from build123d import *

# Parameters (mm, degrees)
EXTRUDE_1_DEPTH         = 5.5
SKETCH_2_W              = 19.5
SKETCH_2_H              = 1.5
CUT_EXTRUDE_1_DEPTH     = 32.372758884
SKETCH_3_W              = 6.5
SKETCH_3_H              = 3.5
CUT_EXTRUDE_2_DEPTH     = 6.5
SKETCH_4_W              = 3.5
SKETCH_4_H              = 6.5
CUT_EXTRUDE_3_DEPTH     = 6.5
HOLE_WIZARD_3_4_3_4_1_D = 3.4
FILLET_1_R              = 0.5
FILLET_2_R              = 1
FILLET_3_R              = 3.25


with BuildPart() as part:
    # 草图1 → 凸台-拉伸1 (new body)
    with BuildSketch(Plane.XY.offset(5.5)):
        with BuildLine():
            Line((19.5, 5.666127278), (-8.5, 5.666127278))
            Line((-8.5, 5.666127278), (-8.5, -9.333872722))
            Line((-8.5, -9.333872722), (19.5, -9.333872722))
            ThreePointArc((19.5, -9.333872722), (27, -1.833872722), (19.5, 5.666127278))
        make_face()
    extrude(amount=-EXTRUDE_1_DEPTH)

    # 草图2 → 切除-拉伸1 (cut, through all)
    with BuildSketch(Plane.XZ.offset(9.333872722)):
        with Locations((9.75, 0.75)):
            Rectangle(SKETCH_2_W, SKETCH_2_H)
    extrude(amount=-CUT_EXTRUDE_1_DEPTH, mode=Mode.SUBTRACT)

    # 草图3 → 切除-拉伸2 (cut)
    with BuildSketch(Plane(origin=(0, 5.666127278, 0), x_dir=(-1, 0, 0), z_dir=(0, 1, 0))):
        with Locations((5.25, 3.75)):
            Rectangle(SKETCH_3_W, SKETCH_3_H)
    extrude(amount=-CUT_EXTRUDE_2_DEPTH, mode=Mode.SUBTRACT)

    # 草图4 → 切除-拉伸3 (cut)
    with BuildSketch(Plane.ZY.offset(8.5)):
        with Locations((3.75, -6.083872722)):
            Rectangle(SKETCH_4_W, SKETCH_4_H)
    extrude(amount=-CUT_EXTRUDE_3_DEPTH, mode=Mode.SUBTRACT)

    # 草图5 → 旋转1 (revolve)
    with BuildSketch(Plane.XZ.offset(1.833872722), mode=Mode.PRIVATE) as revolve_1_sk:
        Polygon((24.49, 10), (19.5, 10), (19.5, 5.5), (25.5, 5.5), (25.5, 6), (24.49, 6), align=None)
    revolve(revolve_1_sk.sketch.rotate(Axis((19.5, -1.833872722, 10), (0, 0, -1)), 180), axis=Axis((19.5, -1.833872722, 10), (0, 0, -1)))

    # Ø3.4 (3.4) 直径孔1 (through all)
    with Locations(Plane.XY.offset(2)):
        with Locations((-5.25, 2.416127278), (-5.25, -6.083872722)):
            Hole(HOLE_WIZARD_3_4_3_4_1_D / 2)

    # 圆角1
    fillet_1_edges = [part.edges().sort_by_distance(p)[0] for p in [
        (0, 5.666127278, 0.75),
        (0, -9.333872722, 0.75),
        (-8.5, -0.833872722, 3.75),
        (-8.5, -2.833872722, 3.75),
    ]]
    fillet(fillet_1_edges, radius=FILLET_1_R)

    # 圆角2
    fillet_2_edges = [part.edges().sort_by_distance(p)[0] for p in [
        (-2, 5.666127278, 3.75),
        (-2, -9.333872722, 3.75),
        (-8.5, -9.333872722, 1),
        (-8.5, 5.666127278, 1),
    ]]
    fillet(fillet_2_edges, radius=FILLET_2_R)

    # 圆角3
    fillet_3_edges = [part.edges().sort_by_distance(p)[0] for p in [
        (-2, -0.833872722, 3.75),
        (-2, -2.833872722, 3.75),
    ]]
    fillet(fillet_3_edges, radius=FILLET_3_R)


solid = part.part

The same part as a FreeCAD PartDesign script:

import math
import FreeCAD as App
import Part
import Sketcher
from FreeCAD import Vector
Q = App.Units.Quantity


def edges_at(feature, points):
    """Names of the edges that pass closest to the given points."""
    edges = feature.Shape.Edges
    near = lambda p: min(range(len(edges)), key=lambda i: edges[i].distToShape(Part.Vertex(*p))[0])
    return sorted({f"Edge{near(p) + 1}" for p in points})

doc = App.newDocument("Part")
body = doc.addObject("PartDesign::Body", "Body")

# Sketch on XY plane
sketch1 = body.newObject("Sketcher::SketchObject", "Sketch")
sketch1.AttachmentSupport = (doc.getObject("XY_Plane"), [""])
sketch1.MapMode = "FlatFace"
sketch1.AttachmentOffset = App.Placement(Vector(0, 0, 5.5), App.Rotation())
sketch1.addGeometry([
    Part.LineSegment(Vector(19.5, 5.666127, 0), Vector(-8.5, 5.666127, 0)),
    Part.LineSegment(Vector(-8.5, 5.666127, 0), Vector(-8.5, -9.333873, 0)),
    Part.LineSegment(Vector(-8.5, -9.333873, 0), Vector(19.5, -9.333873, 0)),
    Part.ArcOfCircle(Part.Circle(Vector(19.5, -1.833873, 0), Vector(0, 0, 1), 7.5), math.radians(-90), math.radians(90)),
], False)
sketch1.addConstraint([
    Sketcher.Constraint("Coincident", 0, 2, 1, 1),
    Sketcher.Constraint("Coincident", 1, 2, 2, 1),
    Sketcher.Constraint("Tangent", 2, 2, 3, 1),
    Sketcher.Constraint("Tangent", 3, 2, 0, 1),
    Sketcher.Constraint("Horizontal", 0),
    Sketcher.Constraint("Vertical", 1),
    Sketcher.Constraint("Horizontal", 2),
    Sketcher.Constraint("Radius", 3, Q("7.5 mm")),
    Sketcher.Constraint("DistanceX", 0, 2, 0, 1, Q("28 mm")),
    Sketcher.Constraint("DistanceX", -1, 1, 3, 3, Q("19.5 mm")),
    Sketcher.Constraint("DistanceY", 3, 3, -1, 1, Q("1.833873 mm")),
])
pad1 = body.newObject("PartDesign::Pad", "Pad")
pad1.Profile = sketch1
pad1.Length = 5.5
pad1.Reversed = True

# Sketch on XZ plane
sketch2 = body.newObject("Sketcher::SketchObject", "Sketch001")
sketch2.AttachmentSupport = (doc.getObject("XZ_Plane"), [""])
sketch2.MapMode = "FlatFace"
sketch2.AttachmentOffset = App.Placement(Vector(0, 0, 9.333873), App.Rotation())
sketch2.addGeometry([
    Part.LineSegment(Vector(0, 1.5, 0), Vector(0, 0, 0)),
    Part.LineSegment(Vector(0, 0, 0), Vector(19.5, 0, 0)),
    Part.LineSegment(Vector(19.5, 0, 0), Vector(19.5, 1.5, 0)),
    Part.LineSegment(Vector(19.5, 1.5, 0), Vector(0, 1.5, 0)),
], False)
sketch2.addConstraint([
    Sketcher.Constraint("Coincident", 0, 2, 1, 1),
    Sketcher.Constraint("Coincident", 1, 2, 2, 1),
    Sketcher.Constraint("Coincident", 2, 2, 3, 1),
    Sketcher.Constraint("Coincident", 3, 2, 0, 1),
    Sketcher.Constraint("Vertical", 0),
    Sketcher.Constraint("Horizontal", 1),
    Sketcher.Constraint("Vertical", 2),
    Sketcher.Constraint("Horizontal", 3),
    Sketcher.Constraint("Coincident", 0, 2, -1, 1),
    Sketcher.Constraint("DistanceX", 1, 1, 1, 2, Q("19.5 mm")),
    Sketcher.Constraint("DistanceY", 0, 2, 0, 1, Q("1.5 mm")),
])
pocket1 = body.newObject("PartDesign::Pocket", "Pocket")
pocket1.Profile = sketch2
pocket1.Type = "ThroughAll"

# Sketch on XZ plane
sketch3 = body.newObject("Sketcher::SketchObject", "Sketch002")
sketch3.AttachmentSupport = (doc.getObject("XZ_Plane"), [""])
sketch3.MapMode = "FlatFace"
sketch3.AttachmentOffset = App.Placement(Vector(0, 0, -5.666127), App.Rotation())
sketch3.addGeometry([
    Part.LineSegment(Vector(-2, 5.5, 0), Vector(-2, 2, 0)),
    Part.LineSegment(Vector(-2, 2, 0), Vector(-8.5, 2, 0)),
    Part.LineSegment(Vector(-8.5, 2, 0), Vector(-8.5, 5.5, 0)),
    Part.LineSegment(Vector(-8.5, 5.5, 0), Vector(-2, 5.5, 0)),
], False)
sketch3.addConstraint([
    Sketcher.Constraint("Coincident", 0, 2, 1, 1),
    Sketcher.Constraint("Coincident", 1, 2, 2, 1),
    Sketcher.Constraint("Coincident", 2, 2, 3, 1),
    Sketcher.Constraint("Coincident", 3, 2, 0, 1),
    Sketcher.Constraint("Vertical", 0),
    Sketcher.Constraint("Horizontal", 1),
    Sketcher.Constraint("Vertical", 2),
    Sketcher.Constraint("Horizontal", 3),
    Sketcher.Constraint("DistanceX", 1, 2, 1, 1, Q("6.5 mm")),
    Sketcher.Constraint("DistanceY", 0, 2, 0, 1, Q("3.5 mm")),
    Sketcher.Constraint("DistanceX", 0, 2, -1, 1, Q("2 mm")),
    Sketcher.Constraint("DistanceY", -1, 1, 0, 2, Q("2 mm")),
])
pocket2 = body.newObject("PartDesign::Pocket", "Pocket001")
pocket2.Profile = sketch3
pocket2.Length = 6.5
pocket2.Reversed = True

# Sketch on YZ plane
sketch4 = body.newObject("Sketcher::SketchObject", "Sketch003")
sketch4.AttachmentSupport = (doc.getObject("YZ_Plane"), [""])
sketch4.MapMode = "FlatFace"
sketch4.AttachmentOffset = App.Placement(Vector(0, 0, -8.5), App.Rotation())
sketch4.addGeometry([
    Part.LineSegment(Vector(-2.833873, 2, 0), Vector(-9.333873, 2, 0)),
    Part.LineSegment(Vector(-9.333873, 2, 0), Vector(-9.333873, 5.5, 0)),
    Part.LineSegment(Vector(-9.333873, 5.5, 0), Vector(-2.833873, 5.5, 0)),
    Part.LineSegment(Vector(-2.833873, 5.5, 0), Vector(-2.833873, 2, 0)),
], False)
sketch4.addConstraint([
    Sketcher.Constraint("Coincident", 0, 2, 1, 1),
    Sketcher.Constraint("Coincident", 1, 2, 2, 1),
    Sketcher.Constraint("Coincident", 2, 2, 3, 1),
    Sketcher.Constraint("Coincident", 3, 2, 0, 1),
    Sketcher.Constraint("Horizontal", 0),
    Sketcher.Constraint("Vertical", 1),
    Sketcher.Constraint("Horizontal", 2),
    Sketcher.Constraint("Vertical", 3),
    Sketcher.Constraint("DistanceX", 0, 2, 0, 1, Q("6.5 mm")),
    Sketcher.Constraint("DistanceY", 1, 1, 1, 2, Q("3.5 mm")),
    Sketcher.Constraint("DistanceY", -1, 1, 0, 2, Q("2 mm")),
    Sketcher.Constraint("DistanceX", 0, 2, -1, 1, Q("9.333873 mm")),
])
pocket3 = body.newObject("PartDesign::Pocket", "Pocket002")
pocket3.Profile = sketch4
pocket3.Length = 6.5
pocket3.Reversed = True

# Sketch on XZ plane
sketch5 = body.newObject("Sketcher::SketchObject", "Sketch004")
sketch5.AttachmentSupport = (doc.getObject("XZ_Plane"), [""])
sketch5.MapMode = "FlatFace"
sketch5.AttachmentOffset = App.Placement(Vector(0, 0, 1.833873), App.Rotation())
sketch5.addGeometry([
    Part.LineSegment(Vector(24.49, 10, 0), Vector(19.5, 10, 0)),  # 0
    Part.LineSegment(Vector(19.5, 10, 0), Vector(19.5, 5.5, 0)),  # 1
    Part.LineSegment(Vector(19.5, 5.5, 0), Vector(25.5, 5.5, 0)),  # 2
    Part.LineSegment(Vector(25.5, 5.5, 0), Vector(25.5, 6, 0)),  # 3
    Part.LineSegment(Vector(25.5, 6, 0), Vector(24.49, 6, 0)),  # 4
    Part.LineSegment(Vector(24.49, 6, 0), Vector(24.49, 10, 0)),  # 5
], False)
sketch5.addGeometry(Part.LineSegment(Vector(19.5, 10, 0), Vector(19.5, 5.5, 0)), True)  # axis
sketch5.addConstraint([
    Sketcher.Constraint("Coincident", 0, 2, 1, 1),
    Sketcher.Constraint("Coincident", 1, 2, 2, 1),
    Sketcher.Constraint("Coincident", 2, 2, 3, 1),
    Sketcher.Constraint("Coincident", 3, 2, 4, 1),
    Sketcher.Constraint("Coincident", 4, 2, 5, 1),
    Sketcher.Constraint("Coincident", 5, 2, 0, 1),
    Sketcher.Constraint("Horizontal", 0),
    Sketcher.Constraint("Vertical", 1),
    Sketcher.Constraint("Horizontal", 2),
    Sketcher.Constraint("Vertical", 3),
    Sketcher.Constraint("Horizontal", 4),
    Sketcher.Constraint("Vertical", 5),
    Sketcher.Constraint("Vertical", 6),
    Sketcher.Constraint("Coincident", 6, 1, 0, 2),
    Sketcher.Constraint("Horizontal", 2, 2, 6, 2),
    Sketcher.Constraint("DistanceX", 2, 1, 2, 2, Q("6 mm")),
    Sketcher.Constraint("DistanceY", 5, 1, 5, 2, Q("4 mm")),
    Sketcher.Constraint("DistanceY", 1, 2, 1, 1, Q("4.5 mm")),
    Sketcher.Constraint("DistanceY", -1, 1, 0, 2, Q("10 mm")),
    Sketcher.Constraint("DistanceX", 0, 2, 0, 1, Q("4.99 mm")),
    Sketcher.Constraint("DistanceX", -1, 1, 0, 2, Q("19.5 mm")),
])
revolution = body.newObject("PartDesign::Revolution", "Revolution")
revolution.Profile = sketch5
revolution.ReferenceAxis = (sketch5, ["Axis0"])
revolution.Angle = 360

# Sketch on XY plane
sketch6 = body.newObject("Sketcher::SketchObject", "Sketch005")
sketch6.AttachmentSupport = (doc.getObject("XY_Plane"), [""])
sketch6.MapMode = "FlatFace"
sketch6.AttachmentOffset = App.Placement(Vector(0, 0, 2), App.Rotation())
sketch6.addGeometry([
    Part.Circle(Vector(-5.25, 2.416127, 0), Vector(0, 0, 1), 1.7),
    Part.Circle(Vector(-5.25, -6.083873, 0), Vector(0, 0, 1), 1.7),
], False)
sketch6.addConstraint([
    Sketcher.Constraint("Equal", 0, 1),
    Sketcher.Constraint("Vertical", 0, 3, 1, 3),
    Sketcher.Constraint("Diameter", 0, Q("3.4 mm")),
    Sketcher.Constraint("DistanceY", 1, 3, 0, 3, Q("8.5 mm")),
    Sketcher.Constraint("DistanceX", 0, 3, -1, 1, Q("5.25 mm")),
    Sketcher.Constraint("DistanceY", -1, 1, 0, 3, Q("2.416127 mm")),
])
doc.recompute()
hole = body.newObject("PartDesign::Hole", "Hole")
hole.Profile = sketch6
hole.ThreadType = "None"
hole.Diameter = 3.4
hole.DepthType = "ThroughAll"
doc.recompute()

fillet = body.newObject("PartDesign::Fillet", "Fillet")
fillet.Base = (hole, edges_at(hole, [
    (0, 5.666, 0.75),
    (0, -9.334, 0.75),
    (-8.5, -0.834, 3.75),
    (-8.5, -2.834, 3.75),
]))
fillet.Radius = 0.5
doc.recompute()

fillet2 = body.newObject("PartDesign::Fillet", "Fillet001")
fillet2.Base = (fillet, edges_at(fillet, [
    (-2, 5.666, 3.75),
    (-2, -9.334, 3.75),
    (-8.5, -9.334, 1),
    (-8.5, 5.666, 1),
]))
fillet2.Radius = 1
doc.recompute()

fillet3 = body.newObject("PartDesign::Fillet", "Fillet002")
fillet3.Base = (fillet2, edges_at(fillet2, [(-2, -0.834, 3.75), (-2, -2.834, 3.75)]))
fillet3.Radius = 3.25

doc.recompute()
